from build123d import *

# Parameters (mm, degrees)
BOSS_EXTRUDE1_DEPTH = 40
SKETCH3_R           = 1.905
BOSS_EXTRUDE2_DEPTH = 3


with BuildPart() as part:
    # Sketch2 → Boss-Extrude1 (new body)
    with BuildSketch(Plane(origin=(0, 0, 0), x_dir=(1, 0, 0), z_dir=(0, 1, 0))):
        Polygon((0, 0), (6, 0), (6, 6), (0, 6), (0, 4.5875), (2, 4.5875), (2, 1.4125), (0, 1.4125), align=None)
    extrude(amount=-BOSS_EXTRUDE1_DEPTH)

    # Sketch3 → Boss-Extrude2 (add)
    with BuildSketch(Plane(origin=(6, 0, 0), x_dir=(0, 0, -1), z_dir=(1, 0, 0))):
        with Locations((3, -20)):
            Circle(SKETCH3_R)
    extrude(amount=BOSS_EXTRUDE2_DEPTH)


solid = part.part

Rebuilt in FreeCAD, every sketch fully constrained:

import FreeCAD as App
import Part
import Sketcher
from FreeCAD import Vector
Q = App.Units.Quantity

doc = App.newDocument("Part")
body = doc.addObject("PartDesign::Body", "Body")

# Sketch on XZ plane
sketch1 = body.newObject("Sketcher::SketchObject", "Sketch")
sketch1.AttachmentSupport = (doc.getObject("XZ_Plane"), [""])
sketch1.MapMode = "FlatFace"
sketch1.addGeometry([
    Part.LineSegment(Vector(0, 0, 0), Vector(6, 0, 0)),  # 0
    Part.LineSegment(Vector(6, 0, 0), Vector(6, -6, 0)),  # 1
    Part.LineSegment(Vector(6, -6, 0), Vector(0, -6, 0)),  # 2
    Part.LineSegment(Vector(0, -6, 0), Vector(0, -4.5875, 0)),  # 3
    Part.LineSegment(Vector(0, -4.5875, 0), Vector(2, -4.5875, 0)),  # 4
    Part.LineSegment(Vector(2, -4.5875, 0), Vector(2, -1.4125, 0)),  # 5
    Part.LineSegment(Vector(2, -1.4125, 0), Vector(0, -1.4125, 0)),  # 6
    Part.LineSegment(Vector(0, -1.4125, 0), Vector(0, 0, 0)),  # 7
], False)
sketch1.addConstraint([
    Sketcher.Constraint("Coincident", 0, 2, 1, 1),
    Sketcher.Constraint("Coincident", 1, 2, 2, 1),
    Sketcher.Constraint("Coincident", 2, 2, 3, 1),
    Sketcher.Constraint("Coincident", 3, 2, 4, 1),
    Sketcher.Constraint("Coincident", 4, 2, 5, 1),
    Sketcher.Constraint("Coincident", 5, 2, 6, 1),
    Sketcher.Constraint("Coincident", 6, 2, 7, 1),
    Sketcher.Constraint("Coincident", 7, 2, 0, 1),
    Sketcher.Constraint("Horizontal", 0),
    Sketcher.Constraint("Vertical", 1),
    Sketcher.Constraint("Horizontal", 2),
    Sketcher.Constraint("Vertical", 3),
    Sketcher.Constraint("Horizontal", 4),
    Sketcher.Constraint("Vertical", 5),
    Sketcher.Constraint("Horizontal", 6),
    Sketcher.Constraint("Vertical", 7),
    Sketcher.Constraint("Coincident", 7, 2, -1, 1),
    Sketcher.Constraint("PointOnObject", 2, 2, -2),
    Sketcher.Constraint("Equal", 2, 1),
    Sketcher.Constraint("Equal", 3, 7),
    Sketcher.Constraint("DistanceX", 0, 1, 0, 2, Q("6 mm")),
    Sketcher.Constraint("DistanceX", 4, 1, 4, 2, Q("2 mm")),
    Sketcher.Constraint("DistanceY", 5, 1, 5, 2, Q("3.175 mm")),
])
pad1 = body.newObject("PartDesign::Pad", "Pad")
pad1.Profile = sketch1
pad1.Length = 40

# Sketch on YZ plane
sketch2 = body.newObject("Sketcher::SketchObject", "Sketch001")
sketch2.AttachmentSupport = (doc.getObject("YZ_Plane"), [""])
sketch2.MapMode = "FlatFace"
sketch2.AttachmentOffset = App.Placement(Vector(0, 0, 6), App.Rotation())
sketch2.addGeometry(Part.Circle(Vector(-20, -3, 0), Vector(0, 0, 1), 1.905), False)
sketch2.addConstraint([
    Sketcher.Constraint("Diameter", 0, Q("3.81 mm")),
    Sketcher.Constraint("DistanceX", 0, 3, -1, 1, Q("20 mm")),
    Sketcher.Constraint("DistanceY", 0, 3, -1, 1, Q("3 mm")),
])
pad2 = body.newObject("PartDesign::Pad", "Pad001")
pad2.Profile = sketch2
pad2.Length = 3

doc.recompute()
